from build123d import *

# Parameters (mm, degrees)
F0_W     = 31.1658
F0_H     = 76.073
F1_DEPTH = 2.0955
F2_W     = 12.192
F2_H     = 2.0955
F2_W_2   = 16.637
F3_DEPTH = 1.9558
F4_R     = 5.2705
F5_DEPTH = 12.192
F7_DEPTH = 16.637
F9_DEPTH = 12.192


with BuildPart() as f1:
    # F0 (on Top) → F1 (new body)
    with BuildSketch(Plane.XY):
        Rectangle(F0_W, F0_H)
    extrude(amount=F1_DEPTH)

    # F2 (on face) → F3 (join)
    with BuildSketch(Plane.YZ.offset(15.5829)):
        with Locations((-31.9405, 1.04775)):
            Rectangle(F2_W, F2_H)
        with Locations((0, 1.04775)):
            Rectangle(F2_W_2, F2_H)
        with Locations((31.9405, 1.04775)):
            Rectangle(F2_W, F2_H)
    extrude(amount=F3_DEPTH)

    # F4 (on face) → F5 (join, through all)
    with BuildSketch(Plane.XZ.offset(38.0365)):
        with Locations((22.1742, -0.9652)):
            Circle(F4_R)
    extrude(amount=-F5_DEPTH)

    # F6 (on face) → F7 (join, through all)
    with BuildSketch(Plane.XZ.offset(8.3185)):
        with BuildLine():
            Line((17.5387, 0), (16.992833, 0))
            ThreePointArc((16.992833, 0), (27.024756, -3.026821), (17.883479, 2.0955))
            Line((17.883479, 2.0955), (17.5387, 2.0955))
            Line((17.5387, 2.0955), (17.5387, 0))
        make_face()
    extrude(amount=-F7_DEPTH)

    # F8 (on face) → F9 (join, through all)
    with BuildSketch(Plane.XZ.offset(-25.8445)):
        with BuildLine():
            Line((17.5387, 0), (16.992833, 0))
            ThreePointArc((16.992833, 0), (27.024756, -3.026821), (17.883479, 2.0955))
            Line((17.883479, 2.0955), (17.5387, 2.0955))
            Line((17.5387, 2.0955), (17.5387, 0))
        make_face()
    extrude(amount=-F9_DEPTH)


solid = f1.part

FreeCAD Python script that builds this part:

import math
import FreeCAD as App
import Part
import Sketcher
Q = App.Units.Quantity

doc = App.newDocument("Part")
body = doc.addObject("PartDesign::Body", "Body")

# Sketch on XY plane
sketch1 = body.newObject("Sketcher::SketchObject", "Sketch")
sketch1.AttachmentSupport = (doc.getObject("XY_Plane"), [""])
sketch1.MapMode = "FlatFace"
sketch1.addGeometry(Part.LineSegment(App.Vector(-16, 38, 0), App.Vector(-16, -38, 0)), False)
sketch1.addGeometry(Part.LineSegment(App.Vector(-16, -38, 0), App.Vector(16, -38, 0)), False)
sketch1.addGeometry(Part.LineSegment(App.Vector(16, -38, 0), App.Vector(16, 38, 0)), False)
sketch1.addGeometry(Part.LineSegment(App.Vector(16, 38, 0), App.Vector(-16, 38, 0)), False)
sketch1.addConstraint(Sketcher.Constraint("Coincident", 0, 2, 1, 1))
sketch1.addConstraint(Sketcher.Constraint("Coincident", 1, 2, 2, 1))
sketch1.addConstraint(Sketcher.Constraint("Coincident", 2, 2, 3, 1))
sketch1.addConstraint(Sketcher.Constraint("Coincident", 3, 2, 0, 1))
sketch1.addConstraint(Sketcher.Constraint("Vertical", 0))
sketch1.addConstraint(Sketcher.Constraint("Horizontal", 1))
sketch1.addConstraint(Sketcher.Constraint("Vertical", 2))
sketch1.addConstraint(Sketcher.Constraint("Horizontal", 3))
sketch1.addConstraint(Sketcher.Constraint("Symmetric", 0, 2, 2, 2, -1, 1))
sketch1.addConstraint(Sketcher.Constraint("DistanceX", 1, 1, 1, 2, Q("1.227 in")))
sketch1.addConstraint(Sketcher.Constraint("DistanceY", 0, 2, 0, 1, Q("2.995 in")))
pad1 = body.newObject("PartDesign::Pad", "Pad")
pad1.Profile = sketch1
pad1.Length = Q("0.0825 in")

# Sketch on YZ plane
sketch2 = body.newObject("Sketcher::SketchObject", "Sketch001")
sketch2.AttachmentSupport = (doc.getObject("YZ_Plane"), [""])
sketch2.MapMode = "FlatFace"
sketch2.AttachmentOffset = App.Placement(App.Vector(0, 0, 0.6135 * 25.4), App.Rotation())
sketch2.addGeometry(Part.LineSegment(App.Vector(-38, 2.1, 0), App.Vector(-38, 0, 0)), False)
sketch2.addGeometry(Part.LineSegment(App.Vector(-38, 0, 0), App.Vector(-25.8, 0, 0)), False)
sketch2.addGeometry(Part.LineSegment(App.Vector(-25.8, 0, 0), App.Vector(-25.8, 2.1, 0)), False)
sketch2.addGeometry(Part.LineSegment(App.Vector(-25.8, 2.1, 0), App.Vector(-38, 2.1, 0)), False)
sketch2.addGeometry(Part.LineSegment(App.Vector(-8.3, 2.1, 0), App.Vector(-8.3, 0, 0)), False)
sketch2.addGeometry(Part.LineSegment(App.Vector(-8.3, 0, 0), App.Vector(8.3, 0, 0)), False)
sketch2.addGeometry(Part.LineSegment(App.Vector(8.3, 0, 0), App.Vector(8.3, 2.1, 0)), False)
sketch2.addGeometry(Part.LineSegment(App.Vector(8.3, 2.1, 0), App.Vector(-8.3, 2.1, 0)), False)
sketch2.addGeometry(Part.LineSegment(App.Vector(25.8, 2.1, 0), App.Vector(25.8, 0, 0)), False)
sketch2.addGeometry(Part.LineSegment(App.Vector(25.8, 0, 0), App.Vector(38, 0, 0)), False)
sketch2.addGeometry(Part.LineSegment(App.Vector(38, 0, 0), App.Vector(38, 2.1, 0)), False)
sketch2.addGeometry(Part.LineSegment(App.Vector(38, 2.1, 0), App.Vector(25.8, 2.1, 0)), False)
sketch2.addConstraint(Sketcher.Constraint("Coincident", 0, 2, 1, 1))
sketch2.addConstraint(Sketcher.Constraint("Coincident", 1, 2, 2, 1))
sketch2.addConstraint(Sketcher.Constraint("Coincident", 2, 2, 3, 1))
sketch2.addConstraint(Sketcher.Constraint("Coincident", 3, 2, 0, 1))
sketch2.addConstraint(Sketcher.Constraint("Coincident", 4, 2, 5, 1))
sketch2.addConstraint(Sketcher.Constraint("Coincident", 5, 2, 6, 1))
sketch2.addConstraint(Sketcher.Constraint("Coincident", 6, 2, 7, 1))
sketch2.addConstraint(Sketcher.Constraint("Coincident", 7, 2, 4, 1))
sketch2.addConstraint(Sketcher.Constraint("Coincident", 8, 2, 9, 1))
sketch2.addConstraint(Sketcher.Constraint("Coincident", 9, 2, 10, 1))
sketch2.addConstraint(Sketcher.Constraint("Coincident", 10, 2, 11, 1))
sketch2.addConstraint(Sketcher.Constraint("Coincident", 11, 2, 8, 1))
sketch2.addConstraint(Sketcher.Constraint("Vertical", 0))
sketch2.addConstraint(Sketcher.Constraint("Horizontal", 1))
sketch2.addConstraint(Sketcher.Constraint("Vertical", 2))
sketch2.addConstraint(Sketcher.Constraint("Horizontal", 3))
sketch2.addConstraint(Sketcher.Constraint("Vertical", 4))
sketch2.addConstraint(Sketcher.Constraint("Horizontal", 5))
sketch2.addConstraint(Sketcher.Constraint("Vertical", 6))
sketch2.addConstraint(Sketcher.Constraint("Horizontal", 7))
sketch2.addConstraint(Sketcher.Constraint("Vertical", 8))
sketch2.addConstraint(Sketcher.Constraint("Horizontal", 9))
sketch2.addConstraint(Sketcher.Constraint("Vertical", 10))
sketch2.addConstraint(Sketcher.Constraint("Horizontal", 11))
sketch2.addConstraint(Sketcher.Constraint("Symmetric", 4, 2, 5, 2, -1, 1))
sketch2.addConstraint(Sketcher.Constraint("Symmetric", 1, 2, 8, 2, -1, 1))
sketch2.addConstraint(Sketcher.Constraint("Symmetric", 0, 2, 9, 2, -2))
sketch2.addConstraint(Sketcher.Constraint("Horizontal", 3, 2, 6, 2))
sketch2.addConstraint(Sketcher.Constraint("Horizontal", 7, 2, 10, 2))
sketch2.addConstraint(Sketcher.Constraint("DistanceX", 1, 1, 1, 2, Q("0.48 in")))
sketch2.addConstraint(Sketcher.Constraint("DistanceX", 5, 1, 5, 2, Q("0.655 in")))
sketch2.addConstraint(Sketcher.Constraint("DistanceX", 1, 2, 4, 2, Q("0.69 in")))
sketch2.addConstraint(Sketcher.Constraint("DistanceY", 0, 2, 0, 1, Q("0.0825 in")))
pad2 = body.newObject("PartDesign::Pad", "Pad001")
pad2.Profile = sketch2
pad2.Length = Q("0.077 in")

# Sketch on XZ plane
sketch3 = body.newObject("Sketcher::SketchObject", "Sketch002")
sketch3.AttachmentSupport = (doc.getObject("XZ_Plane"), [""])
sketch3.MapMode = "FlatFace"
sketch3.AttachmentOffset = App.Placement(App.Vector(0, 0, 1.4975 * 25.4), App.Rotation())
sketch3.addGeometry(Part.Circle(App.Vector(22, -1, 0), App.Vector(0, 0, 1), 5), False)
sketch3.addConstraint(Sketcher.Constraint("Diameter", 0, Q("0.415 in")))
sketch3.addConstraint(Sketcher.Constraint("DistanceX", -1, 1, 0, 3, Q("0.873 in")))
sketch3.addConstraint(Sketcher.Constraint("DistanceY", 0, 3, -1, 1, Q("0.038 in")))
pad3 = body.newObject("PartDesign::Pad", "Pad002")
pad3.Profile = sketch3
pad3.Length = Q("0.48 in")
pad3.Reversed = True

# Sketch on XZ plane
sketch4 = body.newObject("Sketcher::SketchObject", "Sketch003")
sketch4.AttachmentSupport = (doc.getObject("XZ_Plane"), [""])
sketch4.MapMode = "FlatFace"
sketch4.AttachmentOffset = App.Placement(App.Vector(0, 0, 0.3275 * 25.4), App.Rotation())
sketch4.addGeometry(Part.LineSegment(App.Vector(17.54, 0, 0), App.Vector(16.99, 0, 0)), False)
sketch4.addGeometry(Part.ArcOfCircle(Part.Circle(App.Vector(22.17, -0.97, 0), App.Vector(0, 0, 1), 5.27), math.radians(169), math.radians(504)), False)
sketch4.addGeometry(Part.LineSegment(App.Vector(17.88, 2.1, 0), App.Vector(17.54, 2.1, 0)), False)
sketch4.addGeometry(Part.LineSegment(App.Vector(17.54, 2.1, 0), App.Vector(17.54, 0, 0)), False)
sketch4.addConstraint(Sketcher.Constraint("Coincident", 0, 2, 1, 1))
sketch4.addConstraint(Sketcher.Constraint("Coincident", 1, 2, 2, 1))
sketch4.addConstraint(Sketcher.Constraint("Coincident", 2, 2, 3, 1))
sketch4.addConstraint(Sketcher.Constraint("Coincident", 3, 2, 0, 1))
sketch4.addConstraint(Sketcher.Constraint("Horizontal", 0))
sketch4.addConstraint(Sketcher.Constraint("Horizontal", 2))
sketch4.addConstraint(Sketcher.Constraint("Vertical", 3))
sketch4.addConstraint(Sketcher.Constraint("PointOnObject", 0, 2, -1))
sketch4.addConstraint(Sketcher.Constraint("Radius", 1, Q("0.2075 in")))
sketch4.addConstraint(Sketcher.Constraint("DistanceY", 3, 2, 3, 1, Q("0.0825 in")))
sketch4.addConstraint(Sketcher.Constraint("DistanceX", -1, 1, 1, 3, Q("0.873 in")))
sketch4.addConstraint(Sketcher.Constraint("DistanceY", 1, 3, -1, 1, Q("0.038 in")))
sketch4.addConstraint(Sketcher.Constraint("DistanceX", -1, 1, 2, 2, Q("0.6905 in")))
pad4 = body.newObject("PartDesign::Pad", "Pad003")
pad4.Profile = sketch4
pad4.Length = Q("0.655 in")
pad4.Reversed = True

# Sketch on XZ plane
sketch5 = body.newObject("Sketcher::SketchObject", "Sketch004")
sketch5.AttachmentSupport = (doc.getObject("XZ_Plane"), [""])
sketch5.MapMode = "FlatFace"
sketch5.AttachmentOffset = App.Placement(App.Vector(0, 0, -1.0175 * 25.4), App.Rotation())
sketch5.addGeometry(Part.LineSegment(App.Vector(17.54, 0, 0), App.Vector(16.99, 0, 0)), False)
sketch5.addGeometry(Part.ArcOfCircle(Part.Circle(App.Vector(22.17, -0.97, 0), App.Vector(0, 0, 1), 5.27), math.radians(169), math.radians(504)), False)
sketch5.addGeometry(Part.LineSegment(App.Vector(17.88, 2.1, 0), App.Vector(17.54, 2.1, 0)), False)
sketch5.addGeometry(Part.LineSegment(App.Vector(17.54, 2.1, 0), App.Vector(17.54, 0, 0)), False)
sketch5.addConstraint(Sketcher.Constraint("Coincident", 0, 2, 1, 1))
sketch5.addConstraint(Sketcher.Constraint("Coincident", 1, 2, 2, 1))
sketch5.addConstraint(Sketcher.Constraint("Coincident", 2, 2, 3, 1))
sketch5.addConstraint(Sketcher.Constraint("Coincident", 3, 2, 0, 1))
sketch5.addConstraint(Sketcher.Constraint("Horizontal", 0))
sketch5.addConstraint(Sketcher.Constraint("Horizontal", 2))
sketch5.addConstraint(Sketcher.Constraint("Vertical", 3))
sketch5.addConstraint(Sketcher.Constraint("PointOnObject", 0, 2, -1))
sketch5.addConstraint(Sketcher.Constraint("Radius", 1, Q("0.2075 in")))
sketch5.addConstraint(Sketcher.Constraint("DistanceY", 3, 2, 3, 1, Q("0.0825 in")))
sketch5.addConstraint(Sketcher.Constraint("DistanceX", -1, 1, 1, 3, Q("0.873 in")))
sketch5.addConstraint(Sketcher.Constraint("DistanceY", 1, 3, -1, 1, Q("0.038 in")))
sketch5.addConstraint(Sketcher.Constraint("DistanceX", -1, 1, 2, 2, Q("0.6905 in")))
pad5 = body.newObject("PartDesign::Pad", "Pad004")
pad5.Profile = sketch5
pad5.Length = Q("0.48 in")
pad5.Reversed = True

doc.recompute()
